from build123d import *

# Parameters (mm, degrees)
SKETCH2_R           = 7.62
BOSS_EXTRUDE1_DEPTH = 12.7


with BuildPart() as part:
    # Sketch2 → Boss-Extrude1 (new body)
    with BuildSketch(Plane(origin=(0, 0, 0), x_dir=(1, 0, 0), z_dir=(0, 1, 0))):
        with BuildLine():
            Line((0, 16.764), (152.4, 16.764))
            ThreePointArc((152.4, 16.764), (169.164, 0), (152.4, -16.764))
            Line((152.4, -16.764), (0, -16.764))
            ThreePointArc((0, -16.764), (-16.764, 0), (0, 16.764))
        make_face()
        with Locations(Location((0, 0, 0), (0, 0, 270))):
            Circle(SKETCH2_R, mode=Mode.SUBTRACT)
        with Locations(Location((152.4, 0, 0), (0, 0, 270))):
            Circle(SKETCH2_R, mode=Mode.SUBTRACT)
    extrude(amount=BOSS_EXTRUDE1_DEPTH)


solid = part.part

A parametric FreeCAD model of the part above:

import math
import FreeCAD as App
import Part
import Sketcher
from FreeCAD import Vector
Q = App.Units.Quantity

doc = App.newDocument("Part")
body = doc.addObject("PartDesign::Body", "Body")

# Sketch on XZ plane
sketch1 = body.newObject("Sketcher::SketchObject", "Sketch")
sketch1.AttachmentSupport = (doc.getObject("XZ_Plane"), [""])
sketch1.MapMode = "FlatFace"
sketch1.addGeometry([
    Part.LineSegment(Vector(152.4, -16.764, 0), Vector(0, -16.764, 0)),  # 0
    Part.ArcOfCircle(Part.Circle(Vector(0, 0, 0), Vector(0, 0, 1), 16.764), math.radians(90), math.radians(270)),  # 1
    Part.LineSegment(Vector(0, 16.764, 0), Vector(152.4, 16.764, 0)),  # 2
    Part.ArcOfCircle(Part.Circle(Vector(152.4, 0, 0), Vector(0, 0, 1), 16.764), math.radians(-90), math.radians(90)),  # 3
    Part.Circle(Vector(152.4, 0, 0), Vector(0, 0, 1), 7.62),  # 4
    Part.Circle(Vector(0, 0, 0), Vector(0, 0, 1), 7.62),  # 5
], False)
sketch1.addConstraint([
    Sketcher.Constraint("Tangent", 0, 2, 1, 2),
    Sketcher.Constraint("Tangent", 1, 1, 2, 1),
    Sketcher.Constraint("Tangent", 2, 2, 3, 2),
    Sketcher.Constraint("Tangent", 3, 1, 0, 1),
    Sketcher.Constraint("Horizontal", 0),
    Sketcher.Constraint("Horizontal", 2),
    Sketcher.Constraint("Coincident", 1, 3, -1, 1),
    Sketcher.Constraint("Coincident", 5, 3, -1, 1),
    Sketcher.Constraint("Coincident", 4, 3, 3, 3),
    Sketcher.Constraint("Equal", 4, 5),
    Sketcher.Constraint("Diameter", 4, Q("0.6 in")),
    Sketcher.Constraint("DistanceX", 0, 2, 0, 1, Q("6 in")),
    Sketcher.Constraint("Radius", 1, Q("0.66 in")),
])
pad1 = body.newObject("PartDesign::Pad", "Pad")
pad1.Profile = sketch1
pad1.Length = Q("0.5 in")
pad1.Reversed = True

doc.recompute()
